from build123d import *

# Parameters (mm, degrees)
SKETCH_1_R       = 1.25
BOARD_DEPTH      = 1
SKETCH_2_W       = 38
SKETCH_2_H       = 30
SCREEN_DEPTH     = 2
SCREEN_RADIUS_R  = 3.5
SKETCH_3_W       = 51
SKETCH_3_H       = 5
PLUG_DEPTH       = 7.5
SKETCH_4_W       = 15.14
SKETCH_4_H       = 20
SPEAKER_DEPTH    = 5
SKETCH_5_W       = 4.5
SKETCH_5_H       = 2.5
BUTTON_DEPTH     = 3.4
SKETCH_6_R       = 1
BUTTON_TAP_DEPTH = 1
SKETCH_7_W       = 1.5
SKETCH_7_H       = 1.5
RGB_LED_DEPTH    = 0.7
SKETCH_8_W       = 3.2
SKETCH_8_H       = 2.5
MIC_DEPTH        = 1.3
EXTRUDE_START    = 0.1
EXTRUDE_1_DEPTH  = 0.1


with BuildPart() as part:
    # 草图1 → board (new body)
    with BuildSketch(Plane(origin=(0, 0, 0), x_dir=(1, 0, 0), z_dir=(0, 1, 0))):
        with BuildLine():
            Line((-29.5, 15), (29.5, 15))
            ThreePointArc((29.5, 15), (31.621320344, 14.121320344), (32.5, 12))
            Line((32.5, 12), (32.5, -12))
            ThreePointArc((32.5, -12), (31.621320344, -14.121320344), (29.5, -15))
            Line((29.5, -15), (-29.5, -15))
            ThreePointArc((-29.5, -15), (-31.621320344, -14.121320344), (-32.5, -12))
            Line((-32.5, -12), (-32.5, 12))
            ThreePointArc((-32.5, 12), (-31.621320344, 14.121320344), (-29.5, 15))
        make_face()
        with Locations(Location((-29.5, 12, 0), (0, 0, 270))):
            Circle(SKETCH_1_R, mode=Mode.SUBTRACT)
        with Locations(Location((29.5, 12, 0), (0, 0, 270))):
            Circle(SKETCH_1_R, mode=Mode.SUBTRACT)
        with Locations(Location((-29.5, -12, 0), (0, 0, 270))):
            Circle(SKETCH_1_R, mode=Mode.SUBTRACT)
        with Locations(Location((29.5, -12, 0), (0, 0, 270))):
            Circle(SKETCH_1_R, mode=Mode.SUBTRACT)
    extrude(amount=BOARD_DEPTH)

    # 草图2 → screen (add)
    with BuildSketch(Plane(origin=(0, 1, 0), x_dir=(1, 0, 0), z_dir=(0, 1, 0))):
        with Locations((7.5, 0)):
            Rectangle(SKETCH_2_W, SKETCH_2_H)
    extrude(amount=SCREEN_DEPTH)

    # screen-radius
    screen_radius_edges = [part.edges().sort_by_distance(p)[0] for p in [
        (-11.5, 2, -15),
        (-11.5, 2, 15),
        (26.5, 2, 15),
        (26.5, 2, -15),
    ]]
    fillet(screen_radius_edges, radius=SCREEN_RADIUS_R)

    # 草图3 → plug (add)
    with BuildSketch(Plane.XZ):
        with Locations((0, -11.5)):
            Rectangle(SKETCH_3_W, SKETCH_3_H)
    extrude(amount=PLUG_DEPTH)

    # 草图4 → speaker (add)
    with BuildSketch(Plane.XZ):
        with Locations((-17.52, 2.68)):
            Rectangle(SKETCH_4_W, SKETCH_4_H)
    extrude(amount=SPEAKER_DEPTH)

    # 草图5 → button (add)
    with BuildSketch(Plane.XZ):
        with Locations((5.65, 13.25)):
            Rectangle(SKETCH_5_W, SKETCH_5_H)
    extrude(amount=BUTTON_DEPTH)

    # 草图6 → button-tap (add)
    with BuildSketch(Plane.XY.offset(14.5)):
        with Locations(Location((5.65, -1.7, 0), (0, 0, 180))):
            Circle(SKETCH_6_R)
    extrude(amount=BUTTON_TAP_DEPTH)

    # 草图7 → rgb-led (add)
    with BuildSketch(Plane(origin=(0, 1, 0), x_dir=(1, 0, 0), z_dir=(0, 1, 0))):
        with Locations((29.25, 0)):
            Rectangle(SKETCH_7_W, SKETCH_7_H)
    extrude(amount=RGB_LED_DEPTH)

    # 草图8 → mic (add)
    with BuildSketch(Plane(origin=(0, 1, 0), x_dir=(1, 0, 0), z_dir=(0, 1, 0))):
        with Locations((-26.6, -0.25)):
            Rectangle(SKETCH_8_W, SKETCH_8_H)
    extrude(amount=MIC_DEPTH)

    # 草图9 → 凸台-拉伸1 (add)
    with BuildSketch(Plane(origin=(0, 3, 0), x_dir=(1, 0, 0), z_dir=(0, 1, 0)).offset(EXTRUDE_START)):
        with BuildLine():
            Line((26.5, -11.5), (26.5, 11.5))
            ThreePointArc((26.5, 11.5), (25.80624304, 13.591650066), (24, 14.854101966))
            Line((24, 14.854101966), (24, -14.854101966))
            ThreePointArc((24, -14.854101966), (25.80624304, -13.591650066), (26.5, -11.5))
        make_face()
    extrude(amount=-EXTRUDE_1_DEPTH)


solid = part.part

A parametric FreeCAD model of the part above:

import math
import FreeCAD as App
import Part
import Sketcher


def edges_at(feature, points):
    """Names of the edges that pass closest to the given points."""
    edges = feature.Shape.Edges
    near = lambda p: min(range(len(edges)), key=lambda i: edges[i].distToShape(Part.Vertex(*p))[0])
    return sorted({f"Edge{near(p) + 1}" for p in points})

doc = App.newDocument("Part")
body = doc.addObject("PartDesign::Body", "Body")

sketch1 = body.newObject("Sketcher::SketchObject", "Sketch")
sketch1.AttachmentSupport = (doc.getObject("XZ_Plane"), [""])
sketch1.MapMode = "FlatFace"
sketch1.addGeometry(Part.LineSegment(App.Vector(29.5, -15, 0), App.Vector(-29.5, -15, 0)), False)
sketch1.addGeometry(Part.ArcOfCircle(Part.Circle(App.Vector(-29.5, -12, 0), App.Vector(0, 0, 1), 3), math.radians(180), math.radians(270)), False)
sketch1.addGeometry(Part.LineSegment(App.Vector(-32.5, -12, 0), App.Vector(-32.5, 12, 0)), False)
sketch1.addGeometry(Part.ArcOfCircle(Part.Circle(App.Vector(-29.5, 12, 0), App.Vector(0, 0, 1), 3), math.radians(90), math.radians(180)), False)
sketch1.addGeometry(Part.LineSegment(App.Vector(-29.5, 15, 0), App.Vector(29.5, 15, 0)), False)
sketch1.addGeometry(Part.ArcOfCircle(Part.Circle(App.Vector(29.5, 12, 0), App.Vector(0, 0, 1), 3), math.radians(0), math.radians(90)), False)
sketch1.addGeometry(Part.LineSegment(App.Vector(32.5, 12, 0), App.Vector(32.5, -12, 0)), False)
sketch1.addGeometry(Part.ArcOfCircle(Part.Circle(App.Vector(29.5, -12, 0), App.Vector(0, 0, 1), 3), math.radians(-90), math.radians(0)), False)
sketch1.addGeometry(Part.Circle(App.Vector(29.5, 12, 0), App.Vector(0, 0, 1), 1.25), False)
sketch1.addGeometry(Part.Circle(App.Vector(-29.5, 12, 0), App.Vector(0, 0, 1), 1.25), False)
sketch1.addGeometry(Part.Circle(App.Vector(29.5, -12, 0), App.Vector(0, 0, 1), 1.25), False)
sketch1.addGeometry(Part.Circle(App.Vector(-29.5, -12, 0), App.Vector(0, 0, 1), 1.25), False)
sketch1.addConstraint(Sketcher.Constraint("Tangent", 0, 2, 1, 2))
sketch1.addConstraint(Sketcher.Constraint("Tangent", 1, 1, 2, 1))
sketch1.addConstraint(Sketcher.Constraint("Tangent", 2, 2, 3, 2))
sketch1.addConstraint(Sketcher.Constraint("Tangent", 3, 1, 4, 1))
sketch1.addConstraint(Sketcher.Constraint("Tangent", 4, 2, 5, 2))
sketch1.addConstraint(Sketcher.Constraint("Tangent", 5, 1, 6, 1))
sketch1.addConstraint(Sketcher.Constraint("Tangent", 6, 2, 7, 2))
sketch1.addConstraint(Sketcher.Constraint("Tangent", 7, 1, 0, 1))
sketch1.addConstraint(Sketcher.Constraint("Horizontal", 0))
sketch1.addConstraint(Sketcher.Constraint("Vertical", 2))
sketch1.addConstraint(Sketcher.Constraint("Horizontal", 4))
sketch1.addConstraint(Sketcher.Constraint("Vertical", 6))
sketch1.addConstraint(Sketcher.Constraint("Coincident", 8, 3, 5, 3))
sketch1.addConstraint(Sketcher.Constraint("Coincident", 9, 3, 3, 3))
sketch1.addConstraint(Sketcher.Constraint("Coincident", 10, 3, 7, 3))
sketch1.addConstraint(Sketcher.Constraint("Coincident", 11, 3, 1, 3))
sketch1.addConstraint(Sketcher.Constraint("Equal", 1, 3))
sketch1.addConstraint(Sketcher.Constraint("Equal", 3, 5))
sketch1.addConstraint(Sketcher.Constraint("Equal", 5, 7))
sketch1.addConstraint(Sketcher.Constraint("Equal", 8, 9))
sketch1.addConstraint(Sketcher.Constraint("Equal", 9, 10))
sketch1.addConstraint(Sketcher.Constraint("Equal", 10, 11))
sketch1.addConstraint(Sketcher.Constraint("Symmetric", 1, 3, 5, 3, -1, 1))
sketch1.addConstraint(Sketcher.Constraint("Radius", 1, 3.0))
sketch1.addConstraint(Sketcher.Constraint("Diameter", 8, 2.5))
sketch1.addConstraint(Sketcher.Constraint("DistanceX", 0, 2, 0, 1, 59.0))
sketch1.addConstraint(Sketcher.Constraint("DistanceY", 2, 1, 2, 2, 24.0))
pad1 = body.newObject("PartDesign::Pad", "Pad")
pad1.Profile = sketch1
pad1.Length = 1
pad1.Reversed = True

sketch2 = body.newObject("Sketcher::SketchObject", "Sketch001")
sketch2.AttachmentSupport = (doc.getObject("XZ_Plane"), [""])
sketch2.MapMode = "FlatFace"
sketch2.AttachmentOffset = App.Placement(App.Vector(0, 0, -1), App.Rotation())
sketch2.addGeometry(Part.LineSegment(App.Vector(-11.5, -15, 0), App.Vector(-11.5, 15, 0)), False)
sketch2.addGeometry(Part.LineSegment(App.Vector(-11.5, 15, 0), App.Vector(26.5, 15, 0)), False)
sketch2.addGeometry(Part.LineSegment(App.Vector(26.5, 15, 0), App.Vector(26.5, -15, 0)), False)
sketch2.addGeometry(Part.LineSegment(App.Vector(26.5, -15, 0), App.Vector(-11.5, -15, 0)), False)
sketch2.addConstraint(Sketcher.Constraint("Coincident", 0, 2, 1, 1))
sketch2.addConstraint(Sketcher.Constraint("Coincident", 1, 2, 2, 1))
sketch2.addConstraint(Sketcher.Constraint("Coincident", 2, 2, 3, 1))
sketch2.addConstraint(Sketcher.Constraint("Coincident", 3, 2, 0, 1))
sketch2.addConstraint(Sketcher.Constraint("Vertical", 0))
sketch2.addConstraint(Sketcher.Constraint("Horizontal", 1))
sketch2.addConstraint(Sketcher.Constraint("Vertical", 2))
sketch2.addConstraint(Sketcher.Constraint("Horizontal", 3))
sketch2.addConstraint(Sketcher.Constraint("DistanceX", 1, 1, 1, 2, 38.0))
sketch2.addConstraint(Sketcher.Constraint("DistanceY", 0, 1, 0, 2, 30.0))
sketch2.addConstraint(Sketcher.Constraint("DistanceY", -1, 1, 0, 2, 15.0))
sketch2.addConstraint(Sketcher.Constraint("DistanceX", 0, 2, -1, 1, 11.5))
pad2 = body.newObject("PartDesign::Pad", "Pad001")
pad2.Profile = sketch2
pad2.Length = 2
pad2.Reversed = True
doc.recompute()

fillet = body.newObject("PartDesign::Fillet", "Fillet")
fillet.Base = (pad2, edges_at(pad2, [
    (-11.5, 2, -15),
    (-11.5, 2, 15),
    (26.5, 2, 15),
    (26.5, 2, -15),
]))
fillet.Radius = 3.5

sketch3 = body.newObject("Sketcher::SketchObject", "Sketch002")
sketch3.AttachmentSupport = (doc.getObject("XZ_Plane"), [""])
sketch3.MapMode = "FlatFace"
sketch3.addGeometry(Part.LineSegment(App.Vector(-25.5, -9, 0), App.Vector(-25.5, -14, 0)), False)
sketch3.addGeometry(Part.LineSegment(App.Vector(-25.5, -14, 0), App.Vector(25.5, -14, 0)), False)
sketch3.addGeometry(Part.LineSegment(App.Vector(25.5, -14, 0), App.Vector(25.5, -9, 0)), False)
sketch3.addGeometry(Part.LineSegment(App.Vector(25.5, -9, 0), App.Vector(-25.5, -9, 0)), False)
sketch3.addConstraint(Sketcher.Constraint("Coincident", 0, 2, 1, 1))
sketch3.addConstraint(Sketcher.Constraint("Coincident", 1, 2, 2, 1))
sketch3.addConstraint(Sketcher.Constraint("Coincident", 2, 2, 3, 1))
sketch3.addConstraint(Sketcher.Constraint("Coincident", 3, 2, 0, 1))
sketch3.addConstraint(Sketcher.Constraint("Vertical", 0))
sketch3.addConstraint(Sketcher.Constraint("Horizontal", 1))
sketch3.addConstraint(Sketcher.Constraint("Vertical", 2))
sketch3.addConstraint(Sketcher.Constraint("Horizontal", 3))
sketch3.addConstraint(Sketcher.Constraint("DistanceX", 1, 1, 1, 2, 51.0))
sketch3.addConstraint(Sketcher.Constraint("DistanceY", 0, 2, 0, 1, 5.0))
sketch3.addConstraint(Sketcher.Constraint("DistanceY", 0, 2, -1, 1, 14.0))
sketch3.addConstraint(Sketcher.Constraint("DistanceX", 0, 2, -1, 1, 25.5))
pad3 = body.newObject("PartDesign::Pad", "Pad002")
pad3.Profile = sketch3
pad3.Length = 7.5

sketch4 = body.newObject("Sketcher::SketchObject", "Sketch003")
sketch4.AttachmentSupport = (doc.getObject("XZ_Plane"), [""])
sketch4.MapMode = "FlatFace"
sketch4.addGeometry(Part.LineSegment(App.Vector(-25.09, 12.68, 0), App.Vector(-25.09, -7.32, 0)), False)
sketch4.addGeometry(Part.LineSegment(App.Vector(-25.09, -7.32, 0), App.Vector(-9.95, -7.32, 0)), False)
sketch4.addGeometry(Part.LineSegment(App.Vector(-9.95, -7.32, 0), App.Vector(-9.95, 12.68, 0)), False)
sketch4.addGeometry(Part.LineSegment(App.Vector(-9.95, 12.68, 0), App.Vector(-25.09, 12.68, 0)), False)
sketch4.addConstraint(Sketcher.Constraint("Coincident", 0, 2, 1, 1))
sketch4.addConstraint(Sketcher.Constraint("Coincident", 1, 2, 2, 1))
sketch4.addConstraint(Sketcher.Constraint("Coincident", 2, 2, 3, 1))
sketch4.addConstraint(Sketcher.Constraint("Coincident", 3, 2, 0, 1))
sketch4.addConstraint(Sketcher.Constraint("Vertical", 0))
sketch4.addConstraint(Sketcher.Constraint("Horizontal", 1))
sketch4.addConstraint(Sketcher.Constraint("Vertical", 2))
sketch4.addConstraint(Sketcher.Constraint("Horizontal", 3))
sketch4.addConstraint(Sketcher.Constraint("DistanceY", 0, 2, 0, 1, 20.0))
sketch4.addConstraint(Sketcher.Constraint("DistanceX", 1, 1, 1, 2, 15.14))
sketch4.addConstraint(Sketcher.Constraint("DistanceX", 0, 2, -1, 1, 25.09))
sketch4.addConstraint(Sketcher.Constraint("DistanceY", 0, 2, -1, 1, 7.32))
pad4 = body.newObject("PartDesign::Pad", "Pad003")
pad4.Profile = sketch4
pad4.Length = 5

sketch5 = body.newObject("Sketcher::SketchObject", "Sketch004")
sketch5.AttachmentSupport = (doc.getObject("XZ_Plane"), [""])
sketch5.MapMode = "FlatFace"
sketch5.addGeometry(Part.LineSegment(App.Vector(3.4, 14.5, 0), App.Vector(3.4, 12, 0)), False)
sketch5.addGeometry(Part.LineSegment(App.Vector(3.4, 12, 0), App.Vector(7.9, 12, 0)), False)
sketch5.addGeometry(Part.LineSegment(App.Vector(7.9, 12, 0), App.Vector(7.9, 14.5, 0)), False)
sketch5.addGeometry(Part.LineSegment(App.Vector(7.9, 14.5, 0), App.Vector(3.4, 14.5, 0)), False)
sketch5.addConstraint(Sketcher.Constraint("Coincident", 0, 2, 1, 1))
sketch5.addConstraint(Sketcher.Constraint("Coincident", 1, 2, 2, 1))
sketch5.addConstraint(Sketcher.Constraint("Coincident", 2, 2, 3, 1))
sketch5.addConstraint(Sketcher.Constraint("Coincident", 3, 2, 0, 1))
sketch5.addConstraint(Sketcher.Constraint("Vertical", 0))
sketch5.addConstraint(Sketcher.Constraint("Horizontal", 1))
sketch5.addConstraint(Sketcher.Constraint("Vertical", 2))
sketch5.addConstraint(Sketcher.Constraint("Horizontal", 3))
sketch5.addConstraint(Sketcher.Constraint("DistanceX", 1, 1, 1, 2, 4.5))
sketch5.addConstraint(Sketcher.Constraint("DistanceY", 0, 2, 0, 1, 2.5))
sketch5.addConstraint(Sketcher.Constraint("DistanceY", -1, 1, 0, 2, 12.0))
sketch5.addConstraint(Sketcher.Constraint("DistanceX", -1, 1, 0, 2, 3.4))
pad5 = body.newObject("PartDesign::Pad", "Pad004")
pad5.Profile = sketch5
pad5.Length = 3.4

sketch6 = body.newObject("Sketcher::SketchObject", "Sketch005")
sketch6.AttachmentSupport = (doc.getObject("XY_Plane"), [""])
sketch6.MapMode = "FlatFace"
sketch6.AttachmentOffset = App.Placement(App.Vector(0, 0, 14.5), App.Rotation())
sketch6.addGeometry(Part.Circle(App.Vector(5.65, -1.7, 0), App.Vector(0, 0, 1), 1), False)
sketch6.addConstraint(Sketcher.Constraint("Diameter", 0, 2.0))
sketch6.addConstraint(Sketcher.Constraint("DistanceY", 0, 3, -1, 1, 1.7))
sketch6.addConstraint(Sketcher.Constraint("DistanceX", -1, 1, 0, 3, 5.65))
pad6 = body.newObject("PartDesign::Pad", "Pad005")
pad6.Profile = sketch6
pad6.Length = 1

sketch7 = body.newObject("Sketcher::SketchObject", "Sketch006")
sketch7.AttachmentSupport = (doc.getObject("XZ_Plane"), [""])
sketch7.MapMode = "FlatFace"
sketch7.AttachmentOffset = App.Placement(App.Vector(0, 0, -1), App.Rotation())
sketch7.addGeometry(Part.LineSegment(App.Vector(28.5, -0.75, 0), App.Vector(28.5, 0.75, 0)), False)
sketch7.addGeometry(Part.LineSegment(App.Vector(28.5, 0.75, 0), App.Vector(30, 0.75, 0)), False)
sketch7.addGeometry(Part.LineSegment(App.Vector(30, 0.75, 0), App.Vector(30, -0.75, 0)), False)
sketch7.addGeometry(Part.LineSegment(App.Vector(30, -0.75, 0), App.Vector(28.5, -0.75, 0)), False)
sketch7.addConstraint(Sketcher.Constraint("Coincident", 0, 2, 1, 1))
sketch7.addConstraint(Sketcher.Constraint("Coincident", 1, 2, 2, 1))
sketch7.addConstraint(Sketcher.Constraint("Coincident", 2, 2, 3, 1))
sketch7.addConstraint(Sketcher.Constraint("Coincident", 3, 2, 0, 1))
sketch7.addConstraint(Sketcher.Constraint("Vertical", 0))
sketch7.addConstraint(Sketcher.Constraint("Horizontal", 1))
sketch7.addConstraint(Sketcher.Constraint("Vertical", 2))
sketch7.addConstraint(Sketcher.Constraint("Horizontal", 3))
sketch7.addConstraint(Sketcher.Constraint("Equal", 3, 0))
sketch7.addConstraint(Sketcher.Constraint("DistanceX", 1, 1, 1, 2, 1.5))
sketch7.addConstraint(Sketcher.Constraint("DistanceX", -1, 1, 1, 2, 30.0))
sketch7.addConstraint(Sketcher.Constraint("DistanceY", -1, 1, 0, 2, 0.75))
pad7 = body.newObject("PartDesign::Pad", "Pad006")
pad7.Profile = sketch7
pad7.Length = 0.7
pad7.Reversed = True

sketch8 = body.newObject("Sketcher::SketchObject", "Sketch007")
sketch8.AttachmentSupport = (doc.getObject("XZ_Plane"), [""])
sketch8.MapMode = "FlatFace"
sketch8.AttachmentOffset = App.Placement(App.Vector(0, 0, -1), App.Rotation())
sketch8.addGeometry(Part.LineSegment(App.Vector(-28.2, -1, 0), App.Vector(-28.2, 1.5, 0)), False)
sketch8.addGeometry(Part.LineSegment(App.Vector(-28.2, 1.5, 0), App.Vector(-25, 1.5, 0)), False)
sketch8.addGeometry(Part.LineSegment(App.Vector(-25, 1.5, 0), App.Vector(-25, -1, 0)), False)
sketch8.addGeometry(Part.LineSegment(App.Vector(-25, -1, 0), App.Vector(-28.2, -1, 0)), False)
sketch8.addConstraint(Sketcher.Constraint("Coincident", 0, 2, 1, 1))
sketch8.addConstraint(Sketcher.Constraint("Coincident", 1, 2, 2, 1))
sketch8.addConstraint(Sketcher.Constraint("Coincident", 2, 2, 3, 1))
sketch8.addConstraint(Sketcher.Constraint("Coincident", 3, 2, 0, 1))
sketch8.addConstraint(Sketcher.Constraint("Vertical", 0))
sketch8.addConstraint(Sketcher.Constraint("Horizontal", 1))
sketch8.addConstraint(Sketcher.Constraint("Vertical", 2))
sketch8.addConstraint(Sketcher.Constraint("Horizontal", 3))
sketch8.addConstraint(Sketcher.Constraint("DistanceX", 1, 1, 1, 2, 3.2))
sketch8.addConstraint(Sketcher.Constraint("DistanceY", 0, 1, 0, 2, 2.5))
sketch8.addConstraint(Sketcher.Constraint("DistanceX", 1, 2, -1, 1, 25.0))
sketch8.addConstraint(Sketcher.Constraint("DistanceY", 2, 2, -1, 1, 1.0))
pad8 = body.newObject("PartDesign::Pad", "Pad007")
pad8.Profile = sketch8
pad8.Length = 1.3
pad8.Reversed = True

sketch9 = body.newObject("Sketcher::SketchObject", "Sketch008")
sketch9.AttachmentSupport = (doc.getObject("XZ_Plane"), [""])
sketch9.MapMode = "FlatFace"
sketch9.AttachmentOffset = App.Placement(App.Vector(0, 0, -3.1), App.Rotation())
sketch9.addGeometry(Part.LineSegment(App.Vector(26.5, 11.5, 0), App.Vector(26.5, -11.5, 0)), False)
sketch9.addGeometry(Part.ArcOfCircle(Part.Circle(App.Vector(23, -11.5, 0), App.Vector(0, 0, 1), 3.5), math.radians(-73.39845), math.radians(0)), False)
sketch9.addGeometry(Part.LineSegment(App.Vector(24, -14.854102, 0), App.Vector(24, 14.854102, 0)), False)
sketch9.addGeometry(Part.ArcOfCircle(Part.Circle(App.Vector(23, 11.5, 0), App.Vector(0, 0, 1), 3.5), math.radians(0), math.radians(73.39845)), False)
sketch9.addConstraint(Sketcher.Constraint("Tangent", 0, 2, 1, 2))
sketch9.addConstraint(Sketcher.Constraint("Coincident", 1, 1, 2, 1))
sketch9.addConstraint(Sketcher.Constraint("Coincident", 2, 2, 3, 2))
sketch9.addConstraint(Sketcher.Constraint("Tangent", 3, 1, 0, 1))
sketch9.addConstraint(Sketcher.Constraint("Vertical", 0))
sketch9.addConstraint(Sketcher.Constraint("Vertical", 2))
sketch9.addConstraint(Sketcher.Constraint("Equal", 1, 3))
sketch9.addConstraint(Sketcher.Constraint("Radius", 1, 3.5))
sketch9.addConstraint(Sketcher.Constraint("DistanceY", 0, 2, 0, 1, 23.0))
sketch9.addConstraint(Sketcher.Constraint("DistanceX", -1, 1, 1, 3, 23.0))
sketch9.addConstraint(Sketcher.Constraint("DistanceX", -1, 1, 1, 1, 24.0))
sketch9.addConstraint(Sketcher.Constraint("DistanceY", 1, 3, -1, 1, 11.5))
pad9 = body.newObject("PartDesign::Pad", "Pad008")
pad9.Profile = sketch9
pad9.Length = 0.1

doc.recompute()
